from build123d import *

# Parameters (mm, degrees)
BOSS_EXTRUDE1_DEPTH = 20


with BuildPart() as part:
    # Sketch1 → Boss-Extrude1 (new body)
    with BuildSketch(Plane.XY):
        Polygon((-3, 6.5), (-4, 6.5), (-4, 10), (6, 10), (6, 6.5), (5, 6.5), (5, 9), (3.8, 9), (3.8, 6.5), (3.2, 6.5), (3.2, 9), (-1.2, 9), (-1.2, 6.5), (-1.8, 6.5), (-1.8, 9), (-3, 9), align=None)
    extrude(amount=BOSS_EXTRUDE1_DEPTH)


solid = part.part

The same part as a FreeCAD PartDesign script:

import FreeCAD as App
import Part
import Sketcher

V = App.Vector
Q = App.Units.Quantity


def add_polygon(sketch, points):
    """Adds a closed chain of lines whose ends are joined by coincident constraints."""
    first, n = sketch.GeometryCount, len(points)
    for a, b in zip(points, points[1:] + points[:1]):
        sketch.addGeometry(Part.LineSegment(App.Vector(*a, 0), App.Vector(*b, 0)), False)
    for i in range(n):
        sketch.addConstraint(Sketcher.Constraint("Coincident", first + i, 2, first + (i + 1) % n, 1))

doc = App.newDocument("Part")
body = doc.addObject("PartDesign::Body", "Body")

# Sketch on XY plane
sketch1 = doc.addObject("Sketcher::SketchObject", "Sketch")
body.addObject(sketch1)
sketch1.AttachmentSupport = (doc.XY_Plane, [""])
sketch1.MapMode = "FlatFace"
add_polygon(sketch1, [(-4, 6.5), (-3, 6.5), (-3, 9), (-1.8, 9), (-1.8, 6.5), (-1.2, 6.5), (-1.2, 9), (3.2, 9), (3.2, 6.5), (3.8, 6.5), (3.8, 9), (5, 9), (5, 6.5), (6, 6.5), (6, 10), (-4, 10)])  # lines 0-15
sketch1.addConstraint(Sketcher.Constraint("Horizontal", 0))
sketch1.addConstraint(Sketcher.Constraint("Vertical", 1))
sketch1.addConstraint(Sketcher.Constraint("Horizontal", 2))
sketch1.addConstraint(Sketcher.Constraint("Vertical", 3))
sketch1.addConstraint(Sketcher.Constraint("Horizontal", 4))
sketch1.addConstraint(Sketcher.Constraint("Vertical", 5))
sketch1.addConstraint(Sketcher.Constraint("Horizontal", 6))
sketch1.addConstraint(Sketcher.Constraint("Vertical", 7))
sketch1.addConstraint(Sketcher.Constraint("Horizontal", 8))
sketch1.addConstraint(Sketcher.Constraint("Vertical", 9))
sketch1.addConstraint(Sketcher.Constraint("Horizontal", 10))
sketch1.addConstraint(Sketcher.Constraint("Vertical", 11))
sketch1.addConstraint(Sketcher.Constraint("Horizontal", 12))
sketch1.addConstraint(Sketcher.Constraint("Vertical", 13))
sketch1.addConstraint(Sketcher.Constraint("Horizontal", 14))
sketch1.addConstraint(Sketcher.Constraint("Vertical", 15))
sketch1.addConstraint(Sketcher.Constraint("Horizontal", 0, 2, 3, 2))
sketch1.addConstraint(Sketcher.Constraint("Horizontal", 2, 2, 5, 2))
sketch1.addConstraint(Sketcher.Constraint("Horizontal", 4, 2, 7, 2))
sketch1.addConstraint(Sketcher.Constraint("Horizontal", 6, 2, 9, 2))
sketch1.addConstraint(Sketcher.Constraint("Horizontal", 8, 2, 11, 2))
sketch1.addConstraint(Sketcher.Constraint("Equal", 4, 8))
sketch1.addConstraint(Sketcher.Constraint("Equal", 2, 10))
sketch1.addConstraint(Sketcher.Constraint("Equal", 0, 12))
sketch1.addConstraint(Sketcher.Constraint("DistanceX", 0, 1, 0, 2, Q("1 mm")))
sketch1.addConstraint(Sketcher.Constraint("DistanceX", 14, 2, 14, 1, Q("10 mm")))
sketch1.addConstraint(Sketcher.Constraint("DistanceX", 2, 1, 2, 2, Q("1.2 mm")))
sketch1.addConstraint(Sketcher.Constraint("DistanceX", 4, 1, 4, 2, Q("0.6 mm")))
sketch1.addConstraint(Sketcher.Constraint("DistanceY", 1, 1, 1, 2, Q("2.5 mm")))
sketch1.addConstraint(Sketcher.Constraint("DistanceY", 13, 1, 13, 2, Q("3.5 mm")))
sketch1.addConstraint(Sketcher.Constraint("DistanceX", 0, 2, -1, 1, Q("3 mm")))
sketch1.addConstraint(Sketcher.Constraint("DistanceY", -1, 1, 1, 2, Q("9 mm")))
pad1 = doc.addObject("PartDesign::Pad", "Pad")
body.addObject(pad1)
pad1.Profile = sketch1
pad1.Length = 20

doc.recompute()
